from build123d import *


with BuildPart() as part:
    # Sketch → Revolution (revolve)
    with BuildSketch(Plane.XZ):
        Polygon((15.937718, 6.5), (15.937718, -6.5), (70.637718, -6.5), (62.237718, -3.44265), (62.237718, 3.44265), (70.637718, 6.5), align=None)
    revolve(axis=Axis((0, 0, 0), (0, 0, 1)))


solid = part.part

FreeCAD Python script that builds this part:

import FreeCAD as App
import Part
import Sketcher
Q = App.Units.Quantity


def add_polygon(sketch, points):
    """Adds a closed chain of lines whose ends are joined by coincident constraints."""
    first, n = sketch.GeometryCount, len(points)
    for a, b in zip(points, points[1:] + points[:1]):
        sketch.addGeometry(Part.LineSegment(App.Vector(*a, 0), App.Vector(*b, 0)), False)
    for i in range(n):
        sketch.addConstraint(Sketcher.Constraint("Coincident", first + i, 2, first + (i + 1) % n, 1))

doc = App.newDocument("Part")
body = doc.addObject("PartDesign::Body", "Body")

sketch1 = body.newObject("Sketcher::SketchObject", "Sketch")
sketch1.AttachmentSupport = (doc.getObject("XZ_Plane"), [""])
sketch1.MapMode = "FlatFace"
add_polygon(sketch1, [(15.937718, 6.5), (15.937718, -6.5), (70.637718, -6.5), (62.237718, -3.44265), (62.237718, 3.44265), (70.637718, 6.5)])
sketch1.addConstraint([
    Sketcher.Constraint("Vertical", 0),
    Sketcher.Constraint("Horizontal", 1),
    Sketcher.Constraint("Vertical", 3),
    Sketcher.Constraint("Horizontal", 5),
    Sketcher.Constraint("Symmetric", 1, 2, 4, 2, -1),
    Sketcher.Constraint("Equal", 2, 4),
    Sketcher.Constraint("DistanceY", 0, 2, 0, 1, 13.0),
    Sketcher.Constraint("Angle", 2, Q("160 deg")),
    Sketcher.Constraint("DistanceX", 1, 1, 1, 2, 54.7),
    Sketcher.Constraint("DistanceX", 2, 2, 1, 2, 8.4),
    Sketcher.Constraint("DistanceX", -1, 1, 1, 2, 70.637718),
])
revolution = body.newObject("PartDesign::Revolution", "Revolution")
revolution.Profile = sketch1
revolution.ReferenceAxis = (sketch1, ["V_Axis"])
revolution.Angle = 360

doc.recompute()
